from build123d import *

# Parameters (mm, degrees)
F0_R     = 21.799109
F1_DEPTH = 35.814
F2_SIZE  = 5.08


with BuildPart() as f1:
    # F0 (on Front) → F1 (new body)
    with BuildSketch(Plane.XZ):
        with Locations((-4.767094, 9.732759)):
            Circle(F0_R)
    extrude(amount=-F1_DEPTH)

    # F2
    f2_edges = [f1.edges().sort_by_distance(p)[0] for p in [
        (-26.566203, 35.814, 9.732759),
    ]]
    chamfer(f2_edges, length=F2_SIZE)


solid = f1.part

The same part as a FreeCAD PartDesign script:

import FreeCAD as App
import Part
import Sketcher
from FreeCAD import Vector
Q = App.Units.Quantity


def edges_at(feature, points):
    """Names of the edges that pass closest to the given points."""
    edges = feature.Shape.Edges
    near = lambda p: min(range(len(edges)), key=lambda i: edges[i].distToShape(Part.Vertex(*p))[0])
    return sorted({f"Edge{near(p) + 1}" for p in points})

doc = App.newDocument("Part")
body = doc.addObject("PartDesign::Body", "Body")

# Sketch on XZ plane
sketch1 = body.newObject("Sketcher::SketchObject", "Sketch")
sketch1.AttachmentSupport = (doc.getObject("XZ_Plane"), [""])
sketch1.MapMode = "FlatFace"
sketch1.addGeometry(Part.Circle(Vector(-5, 10, 0), Vector(0, 0, 1), 22), False)
sketch1.addConstraint(Sketcher.Constraint("Diameter", 0, 43.598218))
sketch1.addConstraint(Sketcher.Constraint("DistanceY", -1, 1, 0, 3, 9.732759))
sketch1.addConstraint(Sketcher.Constraint("DistanceX", 0, 3, -1, 1, 4.767094))
pad1 = body.newObject("PartDesign::Pad", "Pad")
pad1.Profile = sketch1
pad1.Length = Q("1.41 in")
pad1.Reversed = True
doc.recompute()

chamfer = body.newObject("PartDesign::Chamfer", "Chamfer")
chamfer.Base = (pad1, edges_at(pad1, [(-26.566, 35.814, 9.733)]))
chamfer.Size = Q("0.2 in")

doc.recompute()
